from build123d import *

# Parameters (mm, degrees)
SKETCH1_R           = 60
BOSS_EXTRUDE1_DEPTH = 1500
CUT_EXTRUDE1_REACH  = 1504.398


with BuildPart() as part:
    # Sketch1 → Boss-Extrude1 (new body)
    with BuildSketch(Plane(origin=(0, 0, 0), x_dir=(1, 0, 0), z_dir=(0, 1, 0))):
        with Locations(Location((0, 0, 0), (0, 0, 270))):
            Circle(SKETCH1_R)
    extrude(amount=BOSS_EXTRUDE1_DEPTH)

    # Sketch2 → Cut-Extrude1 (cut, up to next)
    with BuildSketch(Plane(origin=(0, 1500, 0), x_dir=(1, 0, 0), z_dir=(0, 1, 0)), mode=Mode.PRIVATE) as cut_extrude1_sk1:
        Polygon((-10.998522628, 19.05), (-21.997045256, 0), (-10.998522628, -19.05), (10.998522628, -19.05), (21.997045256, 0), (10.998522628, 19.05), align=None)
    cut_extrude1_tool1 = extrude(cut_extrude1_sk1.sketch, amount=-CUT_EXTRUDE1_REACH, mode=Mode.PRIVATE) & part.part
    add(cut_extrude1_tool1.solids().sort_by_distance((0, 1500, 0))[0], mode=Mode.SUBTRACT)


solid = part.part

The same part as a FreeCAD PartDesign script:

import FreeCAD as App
import Part
import Sketcher
from FreeCAD import Vector
Q = App.Units.Quantity


def add_polygon(sketch, points):
    """Adds a closed chain of lines whose ends are joined by coincident constraints."""
    first, n = sketch.GeometryCount, len(points)
    for a, b in zip(points, points[1:] + points[:1]):
        sketch.addGeometry(Part.LineSegment(App.Vector(*a, 0), App.Vector(*b, 0)), False)
    for i in range(n):
        sketch.addConstraint(Sketcher.Constraint("Coincident", first + i, 2, first + (i + 1) % n, 1))

doc = App.newDocument("Part")
params = doc.addObject("Spreadsheet::Sheet", "Params")
for row, (alias, value) in enumerate([
    ("sketch1_diameter", "120 mm"),
    ("pad1_length", "1500 mm"),
], start=1):
    params.set(f"A{row}", alias)
    params.set(f"B{row}", "=" + value)
    params.setAlias(f"B{row}", alias)

body = doc.addObject("PartDesign::Body", "Body")

# Sketch on XZ plane
sketch1 = body.newObject("Sketcher::SketchObject", "Sketch")
sketch1.AttachmentSupport = (doc.getObject("XZ_Plane"), [""])
sketch1.MapMode = "FlatFace"
sketch1.addGeometry(Part.Circle(Vector(0, 0, 0), Vector(0, 0, 1), 60), False)
sketch1.addConstraint([
    Sketcher.Constraint("Coincident", 0, 3, -1, 1),
    Sketcher.Constraint("Diameter", 0, 120.0),
])
sketch1.setExpression("Constraints[1]", "Params.sketch1_diameter")
pad1 = body.newObject("PartDesign::Pad", "Pad")
pad1.Profile = sketch1
pad1.setExpression("Length", "Params.pad1_length")
pad1.Reversed = True

# Sketch on XZ plane
sketch2 = body.newObject("Sketcher::SketchObject", "Sketch001")
sketch2.AttachmentSupport = (doc.getObject("XZ_Plane"), [""])
sketch2.MapMode = "FlatFace"
sketch2.AttachmentOffset = App.Placement(Vector(0, 0, -1500), App.Rotation())
add_polygon(sketch2, [(-11, -19), (-22, 0), (-11, 19), (11, 19), (22, 0), (11, -19)])  # lines 0-5
sketch2.addConstraint([
    Sketcher.Constraint("Horizontal", 2),
    Sketcher.Constraint("Horizontal", 5),
    Sketcher.Constraint("Symmetric", 0, 2, 3, 2, -1, 1),
    Sketcher.Constraint("Symmetric", 1, 2, 4, 2, -1, 1),
    Sketcher.Constraint("PointOnObject", 0, 2, -1),
    Sketcher.Constraint("Parallel", 0, 3),
    Sketcher.Constraint("Vertical", 2, 2, 4, 2),
    Sketcher.Constraint("Angle", 0, Q("120 deg")),
    Sketcher.Constraint("DistanceY", 4, 2, 2, 2, 38.1),
    Sketcher.Constraint("DistanceX", 2, 1, 2, 2, 21.997045),
])
pocket1 = body.newObject("PartDesign::Pocket", "Pocket")
pocket1.Profile = sketch2
pocket1.Type = "UpToFirst"
pocket1.Reversed = True

doc.recompute()
